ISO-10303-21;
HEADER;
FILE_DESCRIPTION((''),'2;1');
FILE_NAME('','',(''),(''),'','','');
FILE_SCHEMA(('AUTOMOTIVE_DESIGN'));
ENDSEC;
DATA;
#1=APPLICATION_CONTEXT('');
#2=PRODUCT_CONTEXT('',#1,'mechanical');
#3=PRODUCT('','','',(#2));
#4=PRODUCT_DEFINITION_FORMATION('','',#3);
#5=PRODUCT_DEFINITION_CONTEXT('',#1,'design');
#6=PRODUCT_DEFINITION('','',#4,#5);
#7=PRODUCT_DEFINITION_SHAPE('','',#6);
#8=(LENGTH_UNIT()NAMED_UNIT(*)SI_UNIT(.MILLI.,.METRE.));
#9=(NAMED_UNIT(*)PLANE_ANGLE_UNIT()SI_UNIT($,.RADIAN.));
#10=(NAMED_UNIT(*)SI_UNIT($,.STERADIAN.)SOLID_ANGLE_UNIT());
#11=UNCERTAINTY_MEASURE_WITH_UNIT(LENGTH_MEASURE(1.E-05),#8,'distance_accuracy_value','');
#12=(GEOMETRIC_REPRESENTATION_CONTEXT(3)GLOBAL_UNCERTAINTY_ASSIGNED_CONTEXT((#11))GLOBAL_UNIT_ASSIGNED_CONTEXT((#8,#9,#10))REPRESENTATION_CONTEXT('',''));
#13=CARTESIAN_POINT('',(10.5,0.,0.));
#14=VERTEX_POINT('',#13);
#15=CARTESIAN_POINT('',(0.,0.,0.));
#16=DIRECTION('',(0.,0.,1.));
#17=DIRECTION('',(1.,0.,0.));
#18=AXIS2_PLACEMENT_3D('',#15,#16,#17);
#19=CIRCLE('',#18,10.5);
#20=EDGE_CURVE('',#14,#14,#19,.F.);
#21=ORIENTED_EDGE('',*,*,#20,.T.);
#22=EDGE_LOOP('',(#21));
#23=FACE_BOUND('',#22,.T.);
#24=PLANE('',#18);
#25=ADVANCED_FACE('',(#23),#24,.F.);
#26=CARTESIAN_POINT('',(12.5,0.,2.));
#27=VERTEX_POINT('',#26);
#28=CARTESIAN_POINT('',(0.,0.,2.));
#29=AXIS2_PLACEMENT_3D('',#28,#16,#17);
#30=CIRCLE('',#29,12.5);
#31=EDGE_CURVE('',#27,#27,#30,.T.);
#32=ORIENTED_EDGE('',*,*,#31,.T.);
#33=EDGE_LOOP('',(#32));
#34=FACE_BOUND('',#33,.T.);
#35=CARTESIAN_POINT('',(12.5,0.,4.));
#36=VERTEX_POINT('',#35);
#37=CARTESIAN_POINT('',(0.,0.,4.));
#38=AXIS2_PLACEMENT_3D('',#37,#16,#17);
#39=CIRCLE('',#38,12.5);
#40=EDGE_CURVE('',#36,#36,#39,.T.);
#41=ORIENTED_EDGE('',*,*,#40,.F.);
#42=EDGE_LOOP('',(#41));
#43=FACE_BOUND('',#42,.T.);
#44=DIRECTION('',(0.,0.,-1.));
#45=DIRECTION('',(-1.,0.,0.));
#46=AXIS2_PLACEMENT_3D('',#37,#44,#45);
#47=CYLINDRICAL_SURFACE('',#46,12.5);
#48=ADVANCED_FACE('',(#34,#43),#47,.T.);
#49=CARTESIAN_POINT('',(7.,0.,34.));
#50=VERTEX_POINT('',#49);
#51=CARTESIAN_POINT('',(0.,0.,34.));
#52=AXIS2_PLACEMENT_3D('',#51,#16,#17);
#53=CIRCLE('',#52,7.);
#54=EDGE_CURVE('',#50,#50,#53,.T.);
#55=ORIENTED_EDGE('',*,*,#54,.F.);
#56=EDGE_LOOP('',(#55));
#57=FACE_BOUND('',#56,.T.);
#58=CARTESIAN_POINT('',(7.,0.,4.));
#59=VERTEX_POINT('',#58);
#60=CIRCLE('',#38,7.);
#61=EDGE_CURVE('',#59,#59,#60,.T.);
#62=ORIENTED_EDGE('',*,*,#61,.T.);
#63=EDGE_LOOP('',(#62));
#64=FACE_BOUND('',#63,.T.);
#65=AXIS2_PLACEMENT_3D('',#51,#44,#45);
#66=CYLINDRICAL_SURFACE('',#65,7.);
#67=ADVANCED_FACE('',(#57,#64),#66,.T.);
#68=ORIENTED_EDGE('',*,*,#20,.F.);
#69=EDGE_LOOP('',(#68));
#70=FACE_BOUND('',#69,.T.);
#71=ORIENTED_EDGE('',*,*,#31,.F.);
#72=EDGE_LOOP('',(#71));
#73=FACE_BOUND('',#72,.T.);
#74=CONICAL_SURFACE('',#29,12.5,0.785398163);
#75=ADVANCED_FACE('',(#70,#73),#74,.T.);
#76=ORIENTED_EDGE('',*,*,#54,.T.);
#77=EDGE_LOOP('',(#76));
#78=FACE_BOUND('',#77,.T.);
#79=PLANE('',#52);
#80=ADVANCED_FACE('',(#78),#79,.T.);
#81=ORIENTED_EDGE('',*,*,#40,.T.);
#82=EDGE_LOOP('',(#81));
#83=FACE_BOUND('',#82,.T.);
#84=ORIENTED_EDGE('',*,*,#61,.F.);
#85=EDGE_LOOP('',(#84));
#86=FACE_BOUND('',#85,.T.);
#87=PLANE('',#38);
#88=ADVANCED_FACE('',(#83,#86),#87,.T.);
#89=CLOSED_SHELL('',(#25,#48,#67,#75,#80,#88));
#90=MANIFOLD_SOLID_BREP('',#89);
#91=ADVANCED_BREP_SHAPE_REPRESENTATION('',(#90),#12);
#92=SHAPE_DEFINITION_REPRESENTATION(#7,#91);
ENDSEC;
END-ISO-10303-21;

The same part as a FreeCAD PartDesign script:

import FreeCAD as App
import Part
import Sketcher
Q = App.Units.Quantity


def edges_at(feature, points):
    """Names of the edges that pass closest to the given points."""
    edges = feature.Shape.Edges
    near = lambda p: min(range(len(edges)), key=lambda i: edges[i].distToShape(Part.Vertex(*p))[0])
    return sorted({f"Edge{near(p) + 1}" for p in points})

doc = App.newDocument("Part")
params = doc.addObject("Spreadsheet::Sheet", "Params")
for row, (alias, value) in enumerate([
    ("sketch1_diameter", "25 mm"),
    ("pad1_length", "4 mm"),
    ("sketch2_diameter", "14 mm"),
    ("pad2_length", "30 mm"),
    ("chamfer_size", "2 mm"),
], start=1):
    params.set(f"A{row}", alias)
    params.set(f"B{row}", "=" + value)
    params.setAlias(f"B{row}", alias)

body = doc.addObject("PartDesign::Body", "Body")

sketch1 = doc.addObject("Sketcher::SketchObject", "Sketch")
body.addObject(sketch1)
sketch1.AttachmentSupport = (doc.XY_Plane, [""])
sketch1.MapMode = "FlatFace"
sketch1.addGeometry(Part.Circle(App.Vector(0, 0, 0), App.Vector(0, 0, 1), 12), False)
sketch1.addConstraint([
    Sketcher.Constraint("Coincident", 0, 3, -1, 1),
    Sketcher.Constraint("Diameter", 0, Q("25 mm")),
])
sketch1.setExpression("Constraints[1]", "Params.sketch1_diameter")
pad1 = doc.addObject("PartDesign::Pad", "Pad")
body.addObject(pad1)
pad1.Profile = sketch1
pad1.setExpression("Length", "Params.pad1_length")

sketch2 = doc.addObject("Sketcher::SketchObject", "Sketch001")
body.addObject(sketch2)
sketch2.AttachmentSupport = (doc.XY_Plane, [""])
sketch2.MapMode = "FlatFace"
sketch2.AttachmentOffset = App.Placement(App.Vector(0, 0, 4), App.Rotation())
sketch2.addGeometry(Part.Circle(App.Vector(0, 0, 0), App.Vector(0, 0, 1), 7), False)
sketch2.addConstraint([
    Sketcher.Constraint("Coincident", 0, 3, -1, 1),
    Sketcher.Constraint("Diameter", 0, Q("14 mm")),
])
sketch2.setExpression("Constraints[1]", "Params.sketch2_diameter")
pad2 = doc.addObject("PartDesign::Pad", "Pad001")
body.addObject(pad2)
pad2.Profile = sketch2
pad2.setExpression("Length", "Params.pad2_length")
doc.recompute()

chamfer = doc.addObject("PartDesign::Chamfer", "Chamfer")
body.addObject(chamfer)
chamfer.Base = (pad2, edges_at(pad2, [(-12.5, 0, 0)]))
chamfer.setExpression("Size", "Params.chamfer_size")

doc.recompute()
